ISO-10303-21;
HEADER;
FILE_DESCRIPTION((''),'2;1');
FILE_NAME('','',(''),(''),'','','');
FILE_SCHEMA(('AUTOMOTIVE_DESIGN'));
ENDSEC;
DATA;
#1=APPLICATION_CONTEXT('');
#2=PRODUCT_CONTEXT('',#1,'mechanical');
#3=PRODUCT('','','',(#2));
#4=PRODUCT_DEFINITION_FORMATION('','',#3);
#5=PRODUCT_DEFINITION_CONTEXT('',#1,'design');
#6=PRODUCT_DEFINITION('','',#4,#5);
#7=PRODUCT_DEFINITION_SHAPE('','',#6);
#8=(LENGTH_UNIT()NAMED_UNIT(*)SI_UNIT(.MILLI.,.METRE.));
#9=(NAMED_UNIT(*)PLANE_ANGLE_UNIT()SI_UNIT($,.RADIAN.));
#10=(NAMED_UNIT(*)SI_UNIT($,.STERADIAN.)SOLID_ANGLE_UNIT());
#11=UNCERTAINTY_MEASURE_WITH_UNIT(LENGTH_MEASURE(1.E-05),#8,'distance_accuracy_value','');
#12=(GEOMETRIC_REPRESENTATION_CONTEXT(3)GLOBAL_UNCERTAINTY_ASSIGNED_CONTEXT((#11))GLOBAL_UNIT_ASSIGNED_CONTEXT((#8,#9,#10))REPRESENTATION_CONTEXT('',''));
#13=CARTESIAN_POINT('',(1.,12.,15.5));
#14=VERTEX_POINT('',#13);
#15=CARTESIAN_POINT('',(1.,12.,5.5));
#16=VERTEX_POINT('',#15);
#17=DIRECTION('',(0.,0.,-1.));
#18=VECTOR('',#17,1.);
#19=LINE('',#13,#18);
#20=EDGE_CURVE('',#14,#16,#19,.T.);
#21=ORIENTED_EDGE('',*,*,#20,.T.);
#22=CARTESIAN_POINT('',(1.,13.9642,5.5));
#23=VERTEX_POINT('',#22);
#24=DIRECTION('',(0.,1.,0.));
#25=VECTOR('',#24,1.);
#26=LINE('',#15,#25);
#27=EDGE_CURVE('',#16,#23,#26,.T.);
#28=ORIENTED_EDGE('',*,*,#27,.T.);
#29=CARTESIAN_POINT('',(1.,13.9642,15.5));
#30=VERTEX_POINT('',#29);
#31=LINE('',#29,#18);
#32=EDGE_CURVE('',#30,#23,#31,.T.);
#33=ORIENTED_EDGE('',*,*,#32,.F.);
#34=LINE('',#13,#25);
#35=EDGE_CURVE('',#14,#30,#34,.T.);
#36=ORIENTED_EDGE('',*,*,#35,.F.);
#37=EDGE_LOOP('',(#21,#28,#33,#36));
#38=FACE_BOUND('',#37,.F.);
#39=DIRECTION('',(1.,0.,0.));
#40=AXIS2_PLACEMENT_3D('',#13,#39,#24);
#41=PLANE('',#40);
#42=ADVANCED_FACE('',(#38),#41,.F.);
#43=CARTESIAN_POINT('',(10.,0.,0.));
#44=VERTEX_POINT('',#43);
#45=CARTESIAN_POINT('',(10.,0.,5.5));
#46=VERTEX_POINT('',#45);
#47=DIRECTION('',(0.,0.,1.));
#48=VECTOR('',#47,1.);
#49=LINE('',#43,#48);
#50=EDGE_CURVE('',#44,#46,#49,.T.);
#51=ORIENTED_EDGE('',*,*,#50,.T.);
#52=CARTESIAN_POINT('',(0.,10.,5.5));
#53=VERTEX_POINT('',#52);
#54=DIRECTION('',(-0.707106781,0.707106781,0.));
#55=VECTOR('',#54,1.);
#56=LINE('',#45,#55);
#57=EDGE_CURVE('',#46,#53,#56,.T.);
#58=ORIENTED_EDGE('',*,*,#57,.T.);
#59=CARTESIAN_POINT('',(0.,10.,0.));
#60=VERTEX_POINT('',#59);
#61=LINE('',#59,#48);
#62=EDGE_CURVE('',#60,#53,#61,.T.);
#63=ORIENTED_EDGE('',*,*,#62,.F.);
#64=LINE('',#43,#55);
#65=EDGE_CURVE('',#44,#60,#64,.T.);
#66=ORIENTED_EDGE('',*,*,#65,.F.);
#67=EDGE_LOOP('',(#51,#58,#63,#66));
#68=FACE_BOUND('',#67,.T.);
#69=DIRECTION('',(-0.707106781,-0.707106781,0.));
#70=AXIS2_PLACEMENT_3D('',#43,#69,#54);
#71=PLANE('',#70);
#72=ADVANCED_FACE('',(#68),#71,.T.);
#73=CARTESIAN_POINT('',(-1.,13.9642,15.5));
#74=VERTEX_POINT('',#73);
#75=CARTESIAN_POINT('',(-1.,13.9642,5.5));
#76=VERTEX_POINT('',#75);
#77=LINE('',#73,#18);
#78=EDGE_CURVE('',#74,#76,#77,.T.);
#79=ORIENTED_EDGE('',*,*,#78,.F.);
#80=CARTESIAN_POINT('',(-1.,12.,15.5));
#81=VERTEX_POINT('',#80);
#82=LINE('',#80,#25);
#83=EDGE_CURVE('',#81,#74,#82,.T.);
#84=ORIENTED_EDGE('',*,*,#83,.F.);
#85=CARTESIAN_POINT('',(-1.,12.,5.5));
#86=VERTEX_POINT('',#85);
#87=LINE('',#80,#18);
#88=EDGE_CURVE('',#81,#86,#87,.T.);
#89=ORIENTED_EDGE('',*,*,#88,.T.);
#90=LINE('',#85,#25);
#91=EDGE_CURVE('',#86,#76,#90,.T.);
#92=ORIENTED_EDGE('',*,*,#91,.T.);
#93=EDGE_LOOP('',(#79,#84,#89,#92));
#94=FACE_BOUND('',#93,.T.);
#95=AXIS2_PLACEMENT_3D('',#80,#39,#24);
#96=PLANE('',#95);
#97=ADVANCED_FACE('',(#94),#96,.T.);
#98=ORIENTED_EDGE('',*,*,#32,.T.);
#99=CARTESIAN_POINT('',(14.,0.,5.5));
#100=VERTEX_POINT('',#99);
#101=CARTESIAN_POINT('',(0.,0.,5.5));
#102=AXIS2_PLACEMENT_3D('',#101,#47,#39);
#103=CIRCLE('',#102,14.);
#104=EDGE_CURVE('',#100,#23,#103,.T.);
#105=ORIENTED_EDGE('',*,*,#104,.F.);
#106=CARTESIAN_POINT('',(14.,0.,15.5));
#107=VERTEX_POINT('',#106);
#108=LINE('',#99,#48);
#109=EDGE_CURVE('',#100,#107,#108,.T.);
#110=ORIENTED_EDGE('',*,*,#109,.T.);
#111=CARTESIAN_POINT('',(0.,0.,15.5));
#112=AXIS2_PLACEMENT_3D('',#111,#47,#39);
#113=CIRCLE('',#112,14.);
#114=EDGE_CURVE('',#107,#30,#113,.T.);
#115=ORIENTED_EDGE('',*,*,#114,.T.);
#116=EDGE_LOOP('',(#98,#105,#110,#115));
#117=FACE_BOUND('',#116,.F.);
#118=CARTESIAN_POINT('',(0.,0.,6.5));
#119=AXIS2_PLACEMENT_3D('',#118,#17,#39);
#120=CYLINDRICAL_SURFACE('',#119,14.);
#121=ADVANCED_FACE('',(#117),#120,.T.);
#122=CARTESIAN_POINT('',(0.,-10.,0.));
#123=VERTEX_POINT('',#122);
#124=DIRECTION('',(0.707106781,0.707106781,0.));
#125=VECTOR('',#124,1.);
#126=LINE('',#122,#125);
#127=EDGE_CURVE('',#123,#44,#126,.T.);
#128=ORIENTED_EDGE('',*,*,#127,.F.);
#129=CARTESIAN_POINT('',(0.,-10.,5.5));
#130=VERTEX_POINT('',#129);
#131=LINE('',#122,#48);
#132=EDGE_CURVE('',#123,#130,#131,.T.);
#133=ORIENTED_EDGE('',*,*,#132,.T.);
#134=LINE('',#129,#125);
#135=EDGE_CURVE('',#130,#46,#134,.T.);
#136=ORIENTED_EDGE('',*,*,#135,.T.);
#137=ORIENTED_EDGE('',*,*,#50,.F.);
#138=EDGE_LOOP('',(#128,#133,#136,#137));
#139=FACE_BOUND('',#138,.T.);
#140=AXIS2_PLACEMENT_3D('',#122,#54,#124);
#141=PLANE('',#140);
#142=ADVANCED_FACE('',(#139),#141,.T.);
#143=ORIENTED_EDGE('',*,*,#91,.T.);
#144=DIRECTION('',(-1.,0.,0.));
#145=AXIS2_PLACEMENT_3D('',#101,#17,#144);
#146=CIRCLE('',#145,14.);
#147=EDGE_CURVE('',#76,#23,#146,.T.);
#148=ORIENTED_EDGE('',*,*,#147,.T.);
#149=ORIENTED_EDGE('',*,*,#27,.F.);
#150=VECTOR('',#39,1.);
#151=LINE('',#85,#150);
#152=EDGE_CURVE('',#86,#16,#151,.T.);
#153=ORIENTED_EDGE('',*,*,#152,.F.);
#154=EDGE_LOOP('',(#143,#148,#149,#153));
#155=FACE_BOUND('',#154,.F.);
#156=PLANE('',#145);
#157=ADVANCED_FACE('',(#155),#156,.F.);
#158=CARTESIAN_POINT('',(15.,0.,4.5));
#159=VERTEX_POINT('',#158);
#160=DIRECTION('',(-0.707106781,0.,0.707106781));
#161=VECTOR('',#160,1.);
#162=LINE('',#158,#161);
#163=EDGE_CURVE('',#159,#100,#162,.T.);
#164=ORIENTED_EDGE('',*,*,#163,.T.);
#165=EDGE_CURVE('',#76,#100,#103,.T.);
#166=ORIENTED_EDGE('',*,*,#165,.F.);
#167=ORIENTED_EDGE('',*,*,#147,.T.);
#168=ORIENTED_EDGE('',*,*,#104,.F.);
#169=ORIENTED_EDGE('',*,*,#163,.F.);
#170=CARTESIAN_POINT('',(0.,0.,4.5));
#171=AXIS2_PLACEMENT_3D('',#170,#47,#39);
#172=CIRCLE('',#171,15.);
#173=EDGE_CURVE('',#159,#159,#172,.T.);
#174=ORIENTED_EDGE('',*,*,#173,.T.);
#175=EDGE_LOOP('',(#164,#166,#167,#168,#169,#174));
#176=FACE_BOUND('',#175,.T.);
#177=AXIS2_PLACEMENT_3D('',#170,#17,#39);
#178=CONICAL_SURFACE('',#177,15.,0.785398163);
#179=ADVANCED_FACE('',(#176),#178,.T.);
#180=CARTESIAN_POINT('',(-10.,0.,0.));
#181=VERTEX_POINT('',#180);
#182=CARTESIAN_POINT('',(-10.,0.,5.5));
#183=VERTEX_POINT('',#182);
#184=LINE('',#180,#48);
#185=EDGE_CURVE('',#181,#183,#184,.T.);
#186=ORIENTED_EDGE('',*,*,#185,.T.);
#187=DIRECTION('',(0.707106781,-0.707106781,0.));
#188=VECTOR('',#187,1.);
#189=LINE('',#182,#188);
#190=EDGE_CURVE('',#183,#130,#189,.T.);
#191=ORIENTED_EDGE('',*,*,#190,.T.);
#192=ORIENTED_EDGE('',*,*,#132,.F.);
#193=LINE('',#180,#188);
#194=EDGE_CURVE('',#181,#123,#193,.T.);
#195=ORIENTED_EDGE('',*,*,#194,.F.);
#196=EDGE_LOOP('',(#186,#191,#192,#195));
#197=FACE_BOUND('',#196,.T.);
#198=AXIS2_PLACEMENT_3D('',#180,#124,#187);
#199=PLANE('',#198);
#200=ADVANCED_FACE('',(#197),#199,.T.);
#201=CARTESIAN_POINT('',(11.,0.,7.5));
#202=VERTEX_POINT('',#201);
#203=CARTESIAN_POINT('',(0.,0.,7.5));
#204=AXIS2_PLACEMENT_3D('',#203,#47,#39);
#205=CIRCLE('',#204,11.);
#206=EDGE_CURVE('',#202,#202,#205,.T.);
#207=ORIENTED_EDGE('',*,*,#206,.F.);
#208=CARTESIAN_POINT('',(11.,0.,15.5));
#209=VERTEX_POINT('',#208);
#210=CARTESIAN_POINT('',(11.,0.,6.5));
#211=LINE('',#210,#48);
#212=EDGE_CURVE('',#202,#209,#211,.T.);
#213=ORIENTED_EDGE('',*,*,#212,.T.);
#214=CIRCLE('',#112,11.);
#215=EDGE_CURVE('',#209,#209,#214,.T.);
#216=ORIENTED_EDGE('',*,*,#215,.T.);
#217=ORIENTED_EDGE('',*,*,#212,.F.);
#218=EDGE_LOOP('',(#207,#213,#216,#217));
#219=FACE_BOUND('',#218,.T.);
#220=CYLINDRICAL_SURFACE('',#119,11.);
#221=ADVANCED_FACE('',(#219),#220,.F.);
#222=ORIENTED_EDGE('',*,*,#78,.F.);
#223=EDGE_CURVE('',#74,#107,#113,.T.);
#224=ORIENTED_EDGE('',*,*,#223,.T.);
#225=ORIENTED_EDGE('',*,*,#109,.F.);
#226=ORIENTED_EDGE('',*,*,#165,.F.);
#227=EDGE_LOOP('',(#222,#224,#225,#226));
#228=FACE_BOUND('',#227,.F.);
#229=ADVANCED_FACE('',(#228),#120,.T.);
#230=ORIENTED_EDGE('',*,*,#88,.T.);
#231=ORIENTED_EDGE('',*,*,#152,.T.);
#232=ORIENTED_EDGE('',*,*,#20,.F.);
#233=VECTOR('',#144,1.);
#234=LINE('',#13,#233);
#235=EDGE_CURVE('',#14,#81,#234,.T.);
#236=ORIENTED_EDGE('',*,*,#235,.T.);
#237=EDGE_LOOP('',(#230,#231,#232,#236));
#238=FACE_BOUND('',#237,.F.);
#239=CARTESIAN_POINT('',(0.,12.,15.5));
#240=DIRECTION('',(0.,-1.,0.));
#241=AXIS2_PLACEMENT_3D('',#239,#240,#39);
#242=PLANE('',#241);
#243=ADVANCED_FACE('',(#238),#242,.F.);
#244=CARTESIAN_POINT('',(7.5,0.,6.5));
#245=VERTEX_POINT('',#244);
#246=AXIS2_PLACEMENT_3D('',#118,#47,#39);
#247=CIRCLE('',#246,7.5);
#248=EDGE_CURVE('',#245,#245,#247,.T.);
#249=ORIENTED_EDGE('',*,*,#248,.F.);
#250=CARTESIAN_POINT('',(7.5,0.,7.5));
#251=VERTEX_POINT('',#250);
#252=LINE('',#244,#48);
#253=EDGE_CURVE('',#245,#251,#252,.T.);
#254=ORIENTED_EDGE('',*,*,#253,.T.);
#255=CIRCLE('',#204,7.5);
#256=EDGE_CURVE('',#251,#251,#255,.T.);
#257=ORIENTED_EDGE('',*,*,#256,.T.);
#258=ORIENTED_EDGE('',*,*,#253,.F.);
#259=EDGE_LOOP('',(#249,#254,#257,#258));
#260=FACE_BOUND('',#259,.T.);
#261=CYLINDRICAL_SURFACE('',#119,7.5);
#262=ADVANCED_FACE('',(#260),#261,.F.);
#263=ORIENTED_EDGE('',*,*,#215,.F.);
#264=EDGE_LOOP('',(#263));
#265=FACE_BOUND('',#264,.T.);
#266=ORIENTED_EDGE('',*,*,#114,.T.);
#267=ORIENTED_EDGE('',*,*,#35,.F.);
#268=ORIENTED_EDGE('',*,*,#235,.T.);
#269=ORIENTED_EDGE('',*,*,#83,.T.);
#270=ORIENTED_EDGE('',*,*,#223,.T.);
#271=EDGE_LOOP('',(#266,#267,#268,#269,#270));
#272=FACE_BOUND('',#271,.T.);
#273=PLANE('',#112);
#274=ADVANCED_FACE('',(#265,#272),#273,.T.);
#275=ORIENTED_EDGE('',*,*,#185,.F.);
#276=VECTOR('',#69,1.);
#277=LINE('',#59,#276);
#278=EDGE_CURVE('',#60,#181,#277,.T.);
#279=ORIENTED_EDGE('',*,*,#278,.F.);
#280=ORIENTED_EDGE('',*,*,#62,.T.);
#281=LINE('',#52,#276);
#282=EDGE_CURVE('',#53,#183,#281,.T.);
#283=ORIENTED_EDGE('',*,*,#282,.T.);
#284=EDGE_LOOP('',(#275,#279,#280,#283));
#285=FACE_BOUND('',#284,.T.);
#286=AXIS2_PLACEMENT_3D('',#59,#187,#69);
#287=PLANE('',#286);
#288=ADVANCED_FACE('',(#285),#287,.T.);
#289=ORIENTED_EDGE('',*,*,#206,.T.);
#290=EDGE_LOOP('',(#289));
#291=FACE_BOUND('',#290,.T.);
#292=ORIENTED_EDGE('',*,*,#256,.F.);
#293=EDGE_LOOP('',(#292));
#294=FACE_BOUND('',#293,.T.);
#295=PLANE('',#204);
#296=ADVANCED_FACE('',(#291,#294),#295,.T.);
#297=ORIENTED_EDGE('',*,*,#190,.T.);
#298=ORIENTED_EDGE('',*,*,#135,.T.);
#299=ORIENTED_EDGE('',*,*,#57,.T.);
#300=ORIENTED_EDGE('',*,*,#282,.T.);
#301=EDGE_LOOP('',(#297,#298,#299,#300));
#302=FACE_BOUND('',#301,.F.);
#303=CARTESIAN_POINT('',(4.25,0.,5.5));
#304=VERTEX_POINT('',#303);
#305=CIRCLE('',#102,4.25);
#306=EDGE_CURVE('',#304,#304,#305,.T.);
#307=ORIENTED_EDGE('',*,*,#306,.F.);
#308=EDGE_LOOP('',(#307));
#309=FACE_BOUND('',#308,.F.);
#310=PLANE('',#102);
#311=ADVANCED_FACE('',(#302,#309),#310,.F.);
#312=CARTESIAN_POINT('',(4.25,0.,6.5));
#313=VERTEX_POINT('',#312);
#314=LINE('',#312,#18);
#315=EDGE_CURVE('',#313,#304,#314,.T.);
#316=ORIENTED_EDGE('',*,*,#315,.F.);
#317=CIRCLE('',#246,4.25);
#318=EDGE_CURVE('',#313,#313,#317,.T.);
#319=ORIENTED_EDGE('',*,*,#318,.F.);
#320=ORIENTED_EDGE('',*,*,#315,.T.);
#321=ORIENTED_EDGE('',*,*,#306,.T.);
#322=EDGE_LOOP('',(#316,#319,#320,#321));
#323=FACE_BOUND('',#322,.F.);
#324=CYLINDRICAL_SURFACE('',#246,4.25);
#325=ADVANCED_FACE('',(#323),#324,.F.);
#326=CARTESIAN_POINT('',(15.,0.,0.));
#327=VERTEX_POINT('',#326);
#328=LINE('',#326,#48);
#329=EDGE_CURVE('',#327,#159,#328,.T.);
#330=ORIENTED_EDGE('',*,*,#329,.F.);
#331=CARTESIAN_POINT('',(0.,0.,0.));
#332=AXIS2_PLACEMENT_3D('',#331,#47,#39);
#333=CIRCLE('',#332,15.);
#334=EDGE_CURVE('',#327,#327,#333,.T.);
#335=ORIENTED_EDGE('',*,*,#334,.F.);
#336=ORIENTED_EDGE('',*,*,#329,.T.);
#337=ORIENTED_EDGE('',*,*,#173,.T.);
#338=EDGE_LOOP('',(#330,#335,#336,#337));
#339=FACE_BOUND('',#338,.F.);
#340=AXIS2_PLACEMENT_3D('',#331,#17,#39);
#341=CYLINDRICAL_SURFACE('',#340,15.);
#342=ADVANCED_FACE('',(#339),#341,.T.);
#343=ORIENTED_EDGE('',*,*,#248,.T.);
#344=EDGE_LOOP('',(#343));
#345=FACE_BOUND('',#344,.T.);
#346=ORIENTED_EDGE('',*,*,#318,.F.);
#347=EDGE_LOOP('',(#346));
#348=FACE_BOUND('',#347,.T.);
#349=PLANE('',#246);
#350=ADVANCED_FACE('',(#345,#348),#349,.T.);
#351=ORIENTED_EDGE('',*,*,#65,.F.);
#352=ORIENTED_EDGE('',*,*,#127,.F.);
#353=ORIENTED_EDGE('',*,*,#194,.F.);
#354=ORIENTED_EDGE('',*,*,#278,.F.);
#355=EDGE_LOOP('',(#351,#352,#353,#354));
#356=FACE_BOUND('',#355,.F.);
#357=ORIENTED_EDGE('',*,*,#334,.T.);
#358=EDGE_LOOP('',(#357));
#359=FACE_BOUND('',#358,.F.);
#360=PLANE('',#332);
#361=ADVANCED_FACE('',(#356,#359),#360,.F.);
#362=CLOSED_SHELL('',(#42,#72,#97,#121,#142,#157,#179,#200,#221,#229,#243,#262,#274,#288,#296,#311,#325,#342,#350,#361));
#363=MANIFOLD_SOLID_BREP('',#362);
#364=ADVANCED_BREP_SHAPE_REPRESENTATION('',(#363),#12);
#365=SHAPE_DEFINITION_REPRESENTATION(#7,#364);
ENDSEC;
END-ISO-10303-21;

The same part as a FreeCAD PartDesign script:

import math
import FreeCAD as App
import Part
import Sketcher
Q = App.Units.Quantity


def edges_at(feature, points):
    """Names of the edges that pass closest to the given points."""
    edges = feature.Shape.Edges
    near = lambda p: min(range(len(edges)), key=lambda i: edges[i].distToShape(Part.Vertex(*p))[0])
    return sorted({f"Edge{near(p) + 1}" for p in points})


def add_polygon(sketch, points):
    """Adds a closed chain of lines whose ends are joined by coincident constraints."""
    first, n = sketch.GeometryCount, len(points)
    for a, b in zip(points, points[1:] + points[:1]):
        sketch.addGeometry(Part.LineSegment(App.Vector(*a, 0), App.Vector(*b, 0)), False)
    for i in range(n):
        sketch.addConstraint(Sketcher.Constraint("Coincident", first + i, 2, first + (i + 1) % n, 1))

doc = App.newDocument("Part")
body = doc.addObject("PartDesign::Body", "Body")

sketch1 = doc.addObject("Sketcher::SketchObject", "Sketch")
body.addObject(sketch1)
sketch1.AttachmentSupport = (doc.XY_Plane, [""])
sketch1.MapMode = "FlatFace"
sketch1.addGeometry(Part.Circle(App.Vector(0, 0, 0), App.Vector(0, 0, 1), 15), False)
add_polygon(sketch1, [(0, -10), (-10, 0), (0, 10), (10, 0)])
sketch1.addConstraint(Sketcher.Constraint("Coincident", 0, 3, -1, 1))
sketch1.addConstraint(Sketcher.Constraint("Symmetric", 1, 2, 3, 2, -1, 1))
sketch1.addConstraint(Sketcher.Constraint("Symmetric", 2, 2, 4, 2, -1, 1))
sketch1.addConstraint(Sketcher.Constraint("PointOnObject", 1, 2, -1))
sketch1.addConstraint(Sketcher.Constraint("PointOnObject", 2, 2, -2))
sketch1.addConstraint(Sketcher.Constraint("Perpendicular", 1, 2))
sketch1.addConstraint(Sketcher.Constraint("Diameter", 0, Q("30 mm")))
sketch1.addConstraint(Sketcher.Constraint("DistanceX", 1, 2, -1, 1, Q("10 mm")))
pad1 = doc.addObject("PartDesign::Pad", "Pad")
body.addObject(pad1)
pad1.Profile = sketch1
pad1.Length = 5.5
doc.recompute()

chamfer = doc.addObject("PartDesign::Chamfer", "Chamfer")
body.addObject(chamfer)
chamfer.Base = (pad1, edges_at(pad1, [(-15, 0, 5.5)]))
chamfer.Size = 1

sketch2 = doc.addObject("Sketcher::SketchObject", "Sketch001")
body.addObject(sketch2)
sketch2.AttachmentSupport = (doc.XY_Plane, [""])
sketch2.MapMode = "FlatFace"
sketch2.AttachmentOffset = App.Placement(App.Vector(0, 0, 5.5), App.Rotation())
sketch2.addGeometry(Part.Circle(App.Vector(0, 0, 0), App.Vector(0, 0, 1), 14), False)
sketch2.addConstraint(Sketcher.Constraint("Coincident", 0, 3, -1, 1))
sketch2.addConstraint(Sketcher.Constraint("Diameter", 0, Q("28 mm")))
pad2 = doc.addObject("PartDesign::Pad", "Pad001")
body.addObject(pad2)
pad2.Profile = sketch2
pad2.Length = 1

sketch3 = doc.addObject("Sketcher::SketchObject", "Sketch002")
body.addObject(sketch3)
sketch3.AttachmentSupport = (doc.XY_Plane, [""])
sketch3.MapMode = "FlatFace"
sketch3.AttachmentOffset = App.Placement(App.Vector(0, 0, 6.5), App.Rotation())
sketch3.addGeometry(Part.Circle(App.Vector(0, 0, 0), App.Vector(0, 0, 1), 14), False)
sketch3.addGeometry(Part.Circle(App.Vector(0, 0, 0), App.Vector(0, 0, 1), 11), False)
sketch3.addConstraint(Sketcher.Constraint("Coincident", 0, 3, -1, 1))
sketch3.addConstraint(Sketcher.Constraint("Coincident", 1, 3, -1, 1))
sketch3.addConstraint(Sketcher.Constraint("Diameter", 0, Q("28 mm")))
sketch3.addConstraint(Sketcher.Constraint("Diameter", 1, Q("22 mm")))
pad3 = doc.addObject("PartDesign::Pad", "Pad002")
body.addObject(pad3)
pad3.Profile = sketch3
pad3.Length = 9

sketch4 = doc.addObject("Sketcher::SketchObject", "Sketch003")
body.addObject(sketch4)
sketch4.AttachmentSupport = (doc.XY_Plane, [""])
sketch4.MapMode = "FlatFace"
sketch4.AttachmentOffset = App.Placement(App.Vector(0, 0, 6.5), App.Rotation())
sketch4.addGeometry(Part.Circle(App.Vector(0, 0, 0), App.Vector(0, 0, 1), 4.25), False)
sketch4.addConstraint(Sketcher.Constraint("Coincident", 0, 3, -1, 1))
sketch4.addConstraint(Sketcher.Constraint("Diameter", 0, Q("8.5 mm")))
pocket1 = doc.addObject("PartDesign::Pocket", "Pocket")
body.addObject(pocket1)
pocket1.Profile = sketch4
pocket1.Type = "ThroughAll"

sketch5 = doc.addObject("Sketcher::SketchObject", "Sketch004")
body.addObject(sketch5)
sketch5.AttachmentSupport = (doc.XY_Plane, [""])
sketch5.MapMode = "FlatFace"
sketch5.AttachmentOffset = App.Placement(App.Vector(0, 0, 15.5), App.Rotation())
sketch5.addGeometry(Part.LineSegment(App.Vector(-1, 12, 0), App.Vector(-1, 13.9642, 0)), False)
sketch5.addGeometry(Part.ArcOfCircle(Part.Circle(App.Vector(0, 0, 0), App.Vector(0, 0, 1), 14), math.radians(85.903945), math.radians(94.096055)), False)
sketch5.addGeometry(Part.LineSegment(App.Vector(1, 13.9642, 0), App.Vector(1, 12, 0)), False)
sketch5.addGeometry(Part.LineSegment(App.Vector(1, 12, 0), App.Vector(-1, 12, 0)), False)
sketch5.addConstraint(Sketcher.Constraint("Coincident", 0, 2, 1, 2))
sketch5.addConstraint(Sketcher.Constraint("Coincident", 1, 1, 2, 1))
sketch5.addConstraint(Sketcher.Constraint("Coincident", 2, 2, 3, 1))
sketch5.addConstraint(Sketcher.Constraint("Coincident", 3, 2, 0, 1))
sketch5.addConstraint(Sketcher.Constraint("Vertical", 0))
sketch5.addConstraint(Sketcher.Constraint("Vertical", 2))
sketch5.addConstraint(Sketcher.Constraint("Horizontal", 3))
sketch5.addConstraint(Sketcher.Constraint("Coincident", 1, 3, -1, 1))
sketch5.addConstraint(Sketcher.Constraint("Horizontal", 0, 2, 1, 1))
sketch5.addConstraint(Sketcher.Constraint("DistanceX", 0, 2, -1, 1, Q("1 mm")))
sketch5.addConstraint(Sketcher.Constraint("DistanceY", -1, 1, 2, 2, Q("12 mm")))
sketch5.addConstraint(Sketcher.Constraint("Radius", 1, Q("14 mm")))
pocket2 = doc.addObject("PartDesign::Pocket", "Pocket001")
body.addObject(pocket2)
pocket2.Profile = sketch5
pocket2.Length = 10

sketch6 = doc.addObject("Sketcher::SketchObject", "Sketch005")
body.addObject(sketch6)
sketch6.AttachmentSupport = (doc.XY_Plane, [""])
sketch6.MapMode = "FlatFace"
sketch6.AttachmentOffset = App.Placement(App.Vector(0, 0, 6.5), App.Rotation())
sketch6.addGeometry(Part.Circle(App.Vector(0, 0, 0), App.Vector(0, 0, 1), 11), False)
sketch6.addGeometry(Part.Circle(App.Vector(0, 0, 0), App.Vector(0, 0, 1), 7.5), False)
sketch6.addConstraint(Sketcher.Constraint("Coincident", 0, 3, -1, 1))
sketch6.addConstraint(Sketcher.Constraint("Coincident", 1, 3, -1, 1))
sketch6.addConstraint(Sketcher.Constraint("Diameter", 1, Q("15 mm")))
sketch6.addConstraint(Sketcher.Constraint("Diameter", 0, Q("22 mm")))
pad4 = doc.addObject("PartDesign::Pad", "Pad003")
body.addObject(pad4)
pad4.Profile = sketch6
pad4.Length = 1

doc.recompute()
